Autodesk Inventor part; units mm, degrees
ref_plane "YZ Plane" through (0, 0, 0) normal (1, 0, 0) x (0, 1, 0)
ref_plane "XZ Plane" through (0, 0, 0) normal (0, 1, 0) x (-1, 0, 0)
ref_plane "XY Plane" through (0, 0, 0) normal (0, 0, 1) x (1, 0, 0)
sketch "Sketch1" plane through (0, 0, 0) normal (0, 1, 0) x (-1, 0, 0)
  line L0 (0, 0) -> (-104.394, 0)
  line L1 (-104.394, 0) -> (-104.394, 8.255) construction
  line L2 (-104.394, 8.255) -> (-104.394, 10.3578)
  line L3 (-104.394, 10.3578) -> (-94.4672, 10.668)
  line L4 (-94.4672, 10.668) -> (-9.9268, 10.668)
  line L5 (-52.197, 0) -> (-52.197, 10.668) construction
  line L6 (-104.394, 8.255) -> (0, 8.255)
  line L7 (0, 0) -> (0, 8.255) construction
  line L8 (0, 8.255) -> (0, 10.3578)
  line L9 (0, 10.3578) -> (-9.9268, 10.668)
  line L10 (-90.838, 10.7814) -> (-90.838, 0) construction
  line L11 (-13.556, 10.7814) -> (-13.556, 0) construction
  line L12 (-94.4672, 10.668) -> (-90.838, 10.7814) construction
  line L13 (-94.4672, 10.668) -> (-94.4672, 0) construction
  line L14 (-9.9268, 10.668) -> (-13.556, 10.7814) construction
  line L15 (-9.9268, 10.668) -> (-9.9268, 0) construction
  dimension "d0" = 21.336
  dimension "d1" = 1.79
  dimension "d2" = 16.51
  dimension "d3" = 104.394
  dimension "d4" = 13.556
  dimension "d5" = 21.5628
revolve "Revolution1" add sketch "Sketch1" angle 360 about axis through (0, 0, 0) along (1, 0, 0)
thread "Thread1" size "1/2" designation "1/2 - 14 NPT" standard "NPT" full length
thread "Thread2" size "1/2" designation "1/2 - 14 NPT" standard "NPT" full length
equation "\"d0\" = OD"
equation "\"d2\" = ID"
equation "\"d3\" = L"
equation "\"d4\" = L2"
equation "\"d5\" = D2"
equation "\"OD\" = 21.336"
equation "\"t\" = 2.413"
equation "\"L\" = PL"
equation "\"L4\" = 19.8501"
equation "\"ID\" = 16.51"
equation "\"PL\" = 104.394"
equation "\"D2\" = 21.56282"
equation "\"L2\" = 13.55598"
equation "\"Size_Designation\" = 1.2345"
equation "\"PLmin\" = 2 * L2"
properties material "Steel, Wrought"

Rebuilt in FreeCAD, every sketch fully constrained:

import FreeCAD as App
import Part
import Sketcher
from FreeCAD import Vector
Q = App.Units.Quantity


def add_polygon(sketch, points):
    """Adds a closed chain of lines whose ends are joined by coincident constraints."""
    first, n = sketch.GeometryCount, len(points)
    for a, b in zip(points, points[1:] + points[:1]):
        sketch.addGeometry(Part.LineSegment(App.Vector(*a, 0), App.Vector(*b, 0)), False)
    for i in range(n):
        sketch.addConstraint(Sketcher.Constraint("Coincident", first + i, 2, first + (i + 1) % n, 1))

doc = App.newDocument("Part")
body = doc.addObject("PartDesign::Body", "Body")

sketch1 = body.newObject("Sketcher::SketchObject", "Sketch")
sketch1.AttachmentSupport = (doc.getObject("XZ_Plane"), [""])
sketch1.MapMode = "FlatFace"
add_polygon(sketch1, [(104.394, 10.3578), (104.394, 8.255), (0, 8.255), (0, 10.3578), (9.9268, 10.668), (94.4672, 10.668)])
sketch1.addConstraint([
    Sketcher.Constraint("Vertical", 0),
    Sketcher.Constraint("Horizontal", 1),
    Sketcher.Constraint("Vertical", 2),
    Sketcher.Constraint("Horizontal", 4),
    Sketcher.Constraint("PointOnObject", 1, 2, -2),
    Sketcher.Constraint("Horizontal", 2, 2, 5, 2),
    Sketcher.Constraint("Equal", 3, 5),
    Sketcher.Constraint("DistanceX", 1, 2, 1, 1, Q("4.11 in")),
    Sketcher.Constraint("Angle", 3, Q("1.7898 deg")),
    Sketcher.Constraint("DistanceY", -1, 1, 3, 2, Q("0.42 in")),
    Sketcher.Constraint("Distance", 3, Q("0.391 in")),
    Sketcher.Constraint("DistanceY", -1, 1, 0, 2, Q("0.325 in")),
])
revolution = body.newObject("PartDesign::Revolution", "Revolution")
revolution.Profile = sketch1
revolution.ReferenceAxis = (sketch1, ["H_Axis"])
revolution.Angle = 360

doc.recompute()
